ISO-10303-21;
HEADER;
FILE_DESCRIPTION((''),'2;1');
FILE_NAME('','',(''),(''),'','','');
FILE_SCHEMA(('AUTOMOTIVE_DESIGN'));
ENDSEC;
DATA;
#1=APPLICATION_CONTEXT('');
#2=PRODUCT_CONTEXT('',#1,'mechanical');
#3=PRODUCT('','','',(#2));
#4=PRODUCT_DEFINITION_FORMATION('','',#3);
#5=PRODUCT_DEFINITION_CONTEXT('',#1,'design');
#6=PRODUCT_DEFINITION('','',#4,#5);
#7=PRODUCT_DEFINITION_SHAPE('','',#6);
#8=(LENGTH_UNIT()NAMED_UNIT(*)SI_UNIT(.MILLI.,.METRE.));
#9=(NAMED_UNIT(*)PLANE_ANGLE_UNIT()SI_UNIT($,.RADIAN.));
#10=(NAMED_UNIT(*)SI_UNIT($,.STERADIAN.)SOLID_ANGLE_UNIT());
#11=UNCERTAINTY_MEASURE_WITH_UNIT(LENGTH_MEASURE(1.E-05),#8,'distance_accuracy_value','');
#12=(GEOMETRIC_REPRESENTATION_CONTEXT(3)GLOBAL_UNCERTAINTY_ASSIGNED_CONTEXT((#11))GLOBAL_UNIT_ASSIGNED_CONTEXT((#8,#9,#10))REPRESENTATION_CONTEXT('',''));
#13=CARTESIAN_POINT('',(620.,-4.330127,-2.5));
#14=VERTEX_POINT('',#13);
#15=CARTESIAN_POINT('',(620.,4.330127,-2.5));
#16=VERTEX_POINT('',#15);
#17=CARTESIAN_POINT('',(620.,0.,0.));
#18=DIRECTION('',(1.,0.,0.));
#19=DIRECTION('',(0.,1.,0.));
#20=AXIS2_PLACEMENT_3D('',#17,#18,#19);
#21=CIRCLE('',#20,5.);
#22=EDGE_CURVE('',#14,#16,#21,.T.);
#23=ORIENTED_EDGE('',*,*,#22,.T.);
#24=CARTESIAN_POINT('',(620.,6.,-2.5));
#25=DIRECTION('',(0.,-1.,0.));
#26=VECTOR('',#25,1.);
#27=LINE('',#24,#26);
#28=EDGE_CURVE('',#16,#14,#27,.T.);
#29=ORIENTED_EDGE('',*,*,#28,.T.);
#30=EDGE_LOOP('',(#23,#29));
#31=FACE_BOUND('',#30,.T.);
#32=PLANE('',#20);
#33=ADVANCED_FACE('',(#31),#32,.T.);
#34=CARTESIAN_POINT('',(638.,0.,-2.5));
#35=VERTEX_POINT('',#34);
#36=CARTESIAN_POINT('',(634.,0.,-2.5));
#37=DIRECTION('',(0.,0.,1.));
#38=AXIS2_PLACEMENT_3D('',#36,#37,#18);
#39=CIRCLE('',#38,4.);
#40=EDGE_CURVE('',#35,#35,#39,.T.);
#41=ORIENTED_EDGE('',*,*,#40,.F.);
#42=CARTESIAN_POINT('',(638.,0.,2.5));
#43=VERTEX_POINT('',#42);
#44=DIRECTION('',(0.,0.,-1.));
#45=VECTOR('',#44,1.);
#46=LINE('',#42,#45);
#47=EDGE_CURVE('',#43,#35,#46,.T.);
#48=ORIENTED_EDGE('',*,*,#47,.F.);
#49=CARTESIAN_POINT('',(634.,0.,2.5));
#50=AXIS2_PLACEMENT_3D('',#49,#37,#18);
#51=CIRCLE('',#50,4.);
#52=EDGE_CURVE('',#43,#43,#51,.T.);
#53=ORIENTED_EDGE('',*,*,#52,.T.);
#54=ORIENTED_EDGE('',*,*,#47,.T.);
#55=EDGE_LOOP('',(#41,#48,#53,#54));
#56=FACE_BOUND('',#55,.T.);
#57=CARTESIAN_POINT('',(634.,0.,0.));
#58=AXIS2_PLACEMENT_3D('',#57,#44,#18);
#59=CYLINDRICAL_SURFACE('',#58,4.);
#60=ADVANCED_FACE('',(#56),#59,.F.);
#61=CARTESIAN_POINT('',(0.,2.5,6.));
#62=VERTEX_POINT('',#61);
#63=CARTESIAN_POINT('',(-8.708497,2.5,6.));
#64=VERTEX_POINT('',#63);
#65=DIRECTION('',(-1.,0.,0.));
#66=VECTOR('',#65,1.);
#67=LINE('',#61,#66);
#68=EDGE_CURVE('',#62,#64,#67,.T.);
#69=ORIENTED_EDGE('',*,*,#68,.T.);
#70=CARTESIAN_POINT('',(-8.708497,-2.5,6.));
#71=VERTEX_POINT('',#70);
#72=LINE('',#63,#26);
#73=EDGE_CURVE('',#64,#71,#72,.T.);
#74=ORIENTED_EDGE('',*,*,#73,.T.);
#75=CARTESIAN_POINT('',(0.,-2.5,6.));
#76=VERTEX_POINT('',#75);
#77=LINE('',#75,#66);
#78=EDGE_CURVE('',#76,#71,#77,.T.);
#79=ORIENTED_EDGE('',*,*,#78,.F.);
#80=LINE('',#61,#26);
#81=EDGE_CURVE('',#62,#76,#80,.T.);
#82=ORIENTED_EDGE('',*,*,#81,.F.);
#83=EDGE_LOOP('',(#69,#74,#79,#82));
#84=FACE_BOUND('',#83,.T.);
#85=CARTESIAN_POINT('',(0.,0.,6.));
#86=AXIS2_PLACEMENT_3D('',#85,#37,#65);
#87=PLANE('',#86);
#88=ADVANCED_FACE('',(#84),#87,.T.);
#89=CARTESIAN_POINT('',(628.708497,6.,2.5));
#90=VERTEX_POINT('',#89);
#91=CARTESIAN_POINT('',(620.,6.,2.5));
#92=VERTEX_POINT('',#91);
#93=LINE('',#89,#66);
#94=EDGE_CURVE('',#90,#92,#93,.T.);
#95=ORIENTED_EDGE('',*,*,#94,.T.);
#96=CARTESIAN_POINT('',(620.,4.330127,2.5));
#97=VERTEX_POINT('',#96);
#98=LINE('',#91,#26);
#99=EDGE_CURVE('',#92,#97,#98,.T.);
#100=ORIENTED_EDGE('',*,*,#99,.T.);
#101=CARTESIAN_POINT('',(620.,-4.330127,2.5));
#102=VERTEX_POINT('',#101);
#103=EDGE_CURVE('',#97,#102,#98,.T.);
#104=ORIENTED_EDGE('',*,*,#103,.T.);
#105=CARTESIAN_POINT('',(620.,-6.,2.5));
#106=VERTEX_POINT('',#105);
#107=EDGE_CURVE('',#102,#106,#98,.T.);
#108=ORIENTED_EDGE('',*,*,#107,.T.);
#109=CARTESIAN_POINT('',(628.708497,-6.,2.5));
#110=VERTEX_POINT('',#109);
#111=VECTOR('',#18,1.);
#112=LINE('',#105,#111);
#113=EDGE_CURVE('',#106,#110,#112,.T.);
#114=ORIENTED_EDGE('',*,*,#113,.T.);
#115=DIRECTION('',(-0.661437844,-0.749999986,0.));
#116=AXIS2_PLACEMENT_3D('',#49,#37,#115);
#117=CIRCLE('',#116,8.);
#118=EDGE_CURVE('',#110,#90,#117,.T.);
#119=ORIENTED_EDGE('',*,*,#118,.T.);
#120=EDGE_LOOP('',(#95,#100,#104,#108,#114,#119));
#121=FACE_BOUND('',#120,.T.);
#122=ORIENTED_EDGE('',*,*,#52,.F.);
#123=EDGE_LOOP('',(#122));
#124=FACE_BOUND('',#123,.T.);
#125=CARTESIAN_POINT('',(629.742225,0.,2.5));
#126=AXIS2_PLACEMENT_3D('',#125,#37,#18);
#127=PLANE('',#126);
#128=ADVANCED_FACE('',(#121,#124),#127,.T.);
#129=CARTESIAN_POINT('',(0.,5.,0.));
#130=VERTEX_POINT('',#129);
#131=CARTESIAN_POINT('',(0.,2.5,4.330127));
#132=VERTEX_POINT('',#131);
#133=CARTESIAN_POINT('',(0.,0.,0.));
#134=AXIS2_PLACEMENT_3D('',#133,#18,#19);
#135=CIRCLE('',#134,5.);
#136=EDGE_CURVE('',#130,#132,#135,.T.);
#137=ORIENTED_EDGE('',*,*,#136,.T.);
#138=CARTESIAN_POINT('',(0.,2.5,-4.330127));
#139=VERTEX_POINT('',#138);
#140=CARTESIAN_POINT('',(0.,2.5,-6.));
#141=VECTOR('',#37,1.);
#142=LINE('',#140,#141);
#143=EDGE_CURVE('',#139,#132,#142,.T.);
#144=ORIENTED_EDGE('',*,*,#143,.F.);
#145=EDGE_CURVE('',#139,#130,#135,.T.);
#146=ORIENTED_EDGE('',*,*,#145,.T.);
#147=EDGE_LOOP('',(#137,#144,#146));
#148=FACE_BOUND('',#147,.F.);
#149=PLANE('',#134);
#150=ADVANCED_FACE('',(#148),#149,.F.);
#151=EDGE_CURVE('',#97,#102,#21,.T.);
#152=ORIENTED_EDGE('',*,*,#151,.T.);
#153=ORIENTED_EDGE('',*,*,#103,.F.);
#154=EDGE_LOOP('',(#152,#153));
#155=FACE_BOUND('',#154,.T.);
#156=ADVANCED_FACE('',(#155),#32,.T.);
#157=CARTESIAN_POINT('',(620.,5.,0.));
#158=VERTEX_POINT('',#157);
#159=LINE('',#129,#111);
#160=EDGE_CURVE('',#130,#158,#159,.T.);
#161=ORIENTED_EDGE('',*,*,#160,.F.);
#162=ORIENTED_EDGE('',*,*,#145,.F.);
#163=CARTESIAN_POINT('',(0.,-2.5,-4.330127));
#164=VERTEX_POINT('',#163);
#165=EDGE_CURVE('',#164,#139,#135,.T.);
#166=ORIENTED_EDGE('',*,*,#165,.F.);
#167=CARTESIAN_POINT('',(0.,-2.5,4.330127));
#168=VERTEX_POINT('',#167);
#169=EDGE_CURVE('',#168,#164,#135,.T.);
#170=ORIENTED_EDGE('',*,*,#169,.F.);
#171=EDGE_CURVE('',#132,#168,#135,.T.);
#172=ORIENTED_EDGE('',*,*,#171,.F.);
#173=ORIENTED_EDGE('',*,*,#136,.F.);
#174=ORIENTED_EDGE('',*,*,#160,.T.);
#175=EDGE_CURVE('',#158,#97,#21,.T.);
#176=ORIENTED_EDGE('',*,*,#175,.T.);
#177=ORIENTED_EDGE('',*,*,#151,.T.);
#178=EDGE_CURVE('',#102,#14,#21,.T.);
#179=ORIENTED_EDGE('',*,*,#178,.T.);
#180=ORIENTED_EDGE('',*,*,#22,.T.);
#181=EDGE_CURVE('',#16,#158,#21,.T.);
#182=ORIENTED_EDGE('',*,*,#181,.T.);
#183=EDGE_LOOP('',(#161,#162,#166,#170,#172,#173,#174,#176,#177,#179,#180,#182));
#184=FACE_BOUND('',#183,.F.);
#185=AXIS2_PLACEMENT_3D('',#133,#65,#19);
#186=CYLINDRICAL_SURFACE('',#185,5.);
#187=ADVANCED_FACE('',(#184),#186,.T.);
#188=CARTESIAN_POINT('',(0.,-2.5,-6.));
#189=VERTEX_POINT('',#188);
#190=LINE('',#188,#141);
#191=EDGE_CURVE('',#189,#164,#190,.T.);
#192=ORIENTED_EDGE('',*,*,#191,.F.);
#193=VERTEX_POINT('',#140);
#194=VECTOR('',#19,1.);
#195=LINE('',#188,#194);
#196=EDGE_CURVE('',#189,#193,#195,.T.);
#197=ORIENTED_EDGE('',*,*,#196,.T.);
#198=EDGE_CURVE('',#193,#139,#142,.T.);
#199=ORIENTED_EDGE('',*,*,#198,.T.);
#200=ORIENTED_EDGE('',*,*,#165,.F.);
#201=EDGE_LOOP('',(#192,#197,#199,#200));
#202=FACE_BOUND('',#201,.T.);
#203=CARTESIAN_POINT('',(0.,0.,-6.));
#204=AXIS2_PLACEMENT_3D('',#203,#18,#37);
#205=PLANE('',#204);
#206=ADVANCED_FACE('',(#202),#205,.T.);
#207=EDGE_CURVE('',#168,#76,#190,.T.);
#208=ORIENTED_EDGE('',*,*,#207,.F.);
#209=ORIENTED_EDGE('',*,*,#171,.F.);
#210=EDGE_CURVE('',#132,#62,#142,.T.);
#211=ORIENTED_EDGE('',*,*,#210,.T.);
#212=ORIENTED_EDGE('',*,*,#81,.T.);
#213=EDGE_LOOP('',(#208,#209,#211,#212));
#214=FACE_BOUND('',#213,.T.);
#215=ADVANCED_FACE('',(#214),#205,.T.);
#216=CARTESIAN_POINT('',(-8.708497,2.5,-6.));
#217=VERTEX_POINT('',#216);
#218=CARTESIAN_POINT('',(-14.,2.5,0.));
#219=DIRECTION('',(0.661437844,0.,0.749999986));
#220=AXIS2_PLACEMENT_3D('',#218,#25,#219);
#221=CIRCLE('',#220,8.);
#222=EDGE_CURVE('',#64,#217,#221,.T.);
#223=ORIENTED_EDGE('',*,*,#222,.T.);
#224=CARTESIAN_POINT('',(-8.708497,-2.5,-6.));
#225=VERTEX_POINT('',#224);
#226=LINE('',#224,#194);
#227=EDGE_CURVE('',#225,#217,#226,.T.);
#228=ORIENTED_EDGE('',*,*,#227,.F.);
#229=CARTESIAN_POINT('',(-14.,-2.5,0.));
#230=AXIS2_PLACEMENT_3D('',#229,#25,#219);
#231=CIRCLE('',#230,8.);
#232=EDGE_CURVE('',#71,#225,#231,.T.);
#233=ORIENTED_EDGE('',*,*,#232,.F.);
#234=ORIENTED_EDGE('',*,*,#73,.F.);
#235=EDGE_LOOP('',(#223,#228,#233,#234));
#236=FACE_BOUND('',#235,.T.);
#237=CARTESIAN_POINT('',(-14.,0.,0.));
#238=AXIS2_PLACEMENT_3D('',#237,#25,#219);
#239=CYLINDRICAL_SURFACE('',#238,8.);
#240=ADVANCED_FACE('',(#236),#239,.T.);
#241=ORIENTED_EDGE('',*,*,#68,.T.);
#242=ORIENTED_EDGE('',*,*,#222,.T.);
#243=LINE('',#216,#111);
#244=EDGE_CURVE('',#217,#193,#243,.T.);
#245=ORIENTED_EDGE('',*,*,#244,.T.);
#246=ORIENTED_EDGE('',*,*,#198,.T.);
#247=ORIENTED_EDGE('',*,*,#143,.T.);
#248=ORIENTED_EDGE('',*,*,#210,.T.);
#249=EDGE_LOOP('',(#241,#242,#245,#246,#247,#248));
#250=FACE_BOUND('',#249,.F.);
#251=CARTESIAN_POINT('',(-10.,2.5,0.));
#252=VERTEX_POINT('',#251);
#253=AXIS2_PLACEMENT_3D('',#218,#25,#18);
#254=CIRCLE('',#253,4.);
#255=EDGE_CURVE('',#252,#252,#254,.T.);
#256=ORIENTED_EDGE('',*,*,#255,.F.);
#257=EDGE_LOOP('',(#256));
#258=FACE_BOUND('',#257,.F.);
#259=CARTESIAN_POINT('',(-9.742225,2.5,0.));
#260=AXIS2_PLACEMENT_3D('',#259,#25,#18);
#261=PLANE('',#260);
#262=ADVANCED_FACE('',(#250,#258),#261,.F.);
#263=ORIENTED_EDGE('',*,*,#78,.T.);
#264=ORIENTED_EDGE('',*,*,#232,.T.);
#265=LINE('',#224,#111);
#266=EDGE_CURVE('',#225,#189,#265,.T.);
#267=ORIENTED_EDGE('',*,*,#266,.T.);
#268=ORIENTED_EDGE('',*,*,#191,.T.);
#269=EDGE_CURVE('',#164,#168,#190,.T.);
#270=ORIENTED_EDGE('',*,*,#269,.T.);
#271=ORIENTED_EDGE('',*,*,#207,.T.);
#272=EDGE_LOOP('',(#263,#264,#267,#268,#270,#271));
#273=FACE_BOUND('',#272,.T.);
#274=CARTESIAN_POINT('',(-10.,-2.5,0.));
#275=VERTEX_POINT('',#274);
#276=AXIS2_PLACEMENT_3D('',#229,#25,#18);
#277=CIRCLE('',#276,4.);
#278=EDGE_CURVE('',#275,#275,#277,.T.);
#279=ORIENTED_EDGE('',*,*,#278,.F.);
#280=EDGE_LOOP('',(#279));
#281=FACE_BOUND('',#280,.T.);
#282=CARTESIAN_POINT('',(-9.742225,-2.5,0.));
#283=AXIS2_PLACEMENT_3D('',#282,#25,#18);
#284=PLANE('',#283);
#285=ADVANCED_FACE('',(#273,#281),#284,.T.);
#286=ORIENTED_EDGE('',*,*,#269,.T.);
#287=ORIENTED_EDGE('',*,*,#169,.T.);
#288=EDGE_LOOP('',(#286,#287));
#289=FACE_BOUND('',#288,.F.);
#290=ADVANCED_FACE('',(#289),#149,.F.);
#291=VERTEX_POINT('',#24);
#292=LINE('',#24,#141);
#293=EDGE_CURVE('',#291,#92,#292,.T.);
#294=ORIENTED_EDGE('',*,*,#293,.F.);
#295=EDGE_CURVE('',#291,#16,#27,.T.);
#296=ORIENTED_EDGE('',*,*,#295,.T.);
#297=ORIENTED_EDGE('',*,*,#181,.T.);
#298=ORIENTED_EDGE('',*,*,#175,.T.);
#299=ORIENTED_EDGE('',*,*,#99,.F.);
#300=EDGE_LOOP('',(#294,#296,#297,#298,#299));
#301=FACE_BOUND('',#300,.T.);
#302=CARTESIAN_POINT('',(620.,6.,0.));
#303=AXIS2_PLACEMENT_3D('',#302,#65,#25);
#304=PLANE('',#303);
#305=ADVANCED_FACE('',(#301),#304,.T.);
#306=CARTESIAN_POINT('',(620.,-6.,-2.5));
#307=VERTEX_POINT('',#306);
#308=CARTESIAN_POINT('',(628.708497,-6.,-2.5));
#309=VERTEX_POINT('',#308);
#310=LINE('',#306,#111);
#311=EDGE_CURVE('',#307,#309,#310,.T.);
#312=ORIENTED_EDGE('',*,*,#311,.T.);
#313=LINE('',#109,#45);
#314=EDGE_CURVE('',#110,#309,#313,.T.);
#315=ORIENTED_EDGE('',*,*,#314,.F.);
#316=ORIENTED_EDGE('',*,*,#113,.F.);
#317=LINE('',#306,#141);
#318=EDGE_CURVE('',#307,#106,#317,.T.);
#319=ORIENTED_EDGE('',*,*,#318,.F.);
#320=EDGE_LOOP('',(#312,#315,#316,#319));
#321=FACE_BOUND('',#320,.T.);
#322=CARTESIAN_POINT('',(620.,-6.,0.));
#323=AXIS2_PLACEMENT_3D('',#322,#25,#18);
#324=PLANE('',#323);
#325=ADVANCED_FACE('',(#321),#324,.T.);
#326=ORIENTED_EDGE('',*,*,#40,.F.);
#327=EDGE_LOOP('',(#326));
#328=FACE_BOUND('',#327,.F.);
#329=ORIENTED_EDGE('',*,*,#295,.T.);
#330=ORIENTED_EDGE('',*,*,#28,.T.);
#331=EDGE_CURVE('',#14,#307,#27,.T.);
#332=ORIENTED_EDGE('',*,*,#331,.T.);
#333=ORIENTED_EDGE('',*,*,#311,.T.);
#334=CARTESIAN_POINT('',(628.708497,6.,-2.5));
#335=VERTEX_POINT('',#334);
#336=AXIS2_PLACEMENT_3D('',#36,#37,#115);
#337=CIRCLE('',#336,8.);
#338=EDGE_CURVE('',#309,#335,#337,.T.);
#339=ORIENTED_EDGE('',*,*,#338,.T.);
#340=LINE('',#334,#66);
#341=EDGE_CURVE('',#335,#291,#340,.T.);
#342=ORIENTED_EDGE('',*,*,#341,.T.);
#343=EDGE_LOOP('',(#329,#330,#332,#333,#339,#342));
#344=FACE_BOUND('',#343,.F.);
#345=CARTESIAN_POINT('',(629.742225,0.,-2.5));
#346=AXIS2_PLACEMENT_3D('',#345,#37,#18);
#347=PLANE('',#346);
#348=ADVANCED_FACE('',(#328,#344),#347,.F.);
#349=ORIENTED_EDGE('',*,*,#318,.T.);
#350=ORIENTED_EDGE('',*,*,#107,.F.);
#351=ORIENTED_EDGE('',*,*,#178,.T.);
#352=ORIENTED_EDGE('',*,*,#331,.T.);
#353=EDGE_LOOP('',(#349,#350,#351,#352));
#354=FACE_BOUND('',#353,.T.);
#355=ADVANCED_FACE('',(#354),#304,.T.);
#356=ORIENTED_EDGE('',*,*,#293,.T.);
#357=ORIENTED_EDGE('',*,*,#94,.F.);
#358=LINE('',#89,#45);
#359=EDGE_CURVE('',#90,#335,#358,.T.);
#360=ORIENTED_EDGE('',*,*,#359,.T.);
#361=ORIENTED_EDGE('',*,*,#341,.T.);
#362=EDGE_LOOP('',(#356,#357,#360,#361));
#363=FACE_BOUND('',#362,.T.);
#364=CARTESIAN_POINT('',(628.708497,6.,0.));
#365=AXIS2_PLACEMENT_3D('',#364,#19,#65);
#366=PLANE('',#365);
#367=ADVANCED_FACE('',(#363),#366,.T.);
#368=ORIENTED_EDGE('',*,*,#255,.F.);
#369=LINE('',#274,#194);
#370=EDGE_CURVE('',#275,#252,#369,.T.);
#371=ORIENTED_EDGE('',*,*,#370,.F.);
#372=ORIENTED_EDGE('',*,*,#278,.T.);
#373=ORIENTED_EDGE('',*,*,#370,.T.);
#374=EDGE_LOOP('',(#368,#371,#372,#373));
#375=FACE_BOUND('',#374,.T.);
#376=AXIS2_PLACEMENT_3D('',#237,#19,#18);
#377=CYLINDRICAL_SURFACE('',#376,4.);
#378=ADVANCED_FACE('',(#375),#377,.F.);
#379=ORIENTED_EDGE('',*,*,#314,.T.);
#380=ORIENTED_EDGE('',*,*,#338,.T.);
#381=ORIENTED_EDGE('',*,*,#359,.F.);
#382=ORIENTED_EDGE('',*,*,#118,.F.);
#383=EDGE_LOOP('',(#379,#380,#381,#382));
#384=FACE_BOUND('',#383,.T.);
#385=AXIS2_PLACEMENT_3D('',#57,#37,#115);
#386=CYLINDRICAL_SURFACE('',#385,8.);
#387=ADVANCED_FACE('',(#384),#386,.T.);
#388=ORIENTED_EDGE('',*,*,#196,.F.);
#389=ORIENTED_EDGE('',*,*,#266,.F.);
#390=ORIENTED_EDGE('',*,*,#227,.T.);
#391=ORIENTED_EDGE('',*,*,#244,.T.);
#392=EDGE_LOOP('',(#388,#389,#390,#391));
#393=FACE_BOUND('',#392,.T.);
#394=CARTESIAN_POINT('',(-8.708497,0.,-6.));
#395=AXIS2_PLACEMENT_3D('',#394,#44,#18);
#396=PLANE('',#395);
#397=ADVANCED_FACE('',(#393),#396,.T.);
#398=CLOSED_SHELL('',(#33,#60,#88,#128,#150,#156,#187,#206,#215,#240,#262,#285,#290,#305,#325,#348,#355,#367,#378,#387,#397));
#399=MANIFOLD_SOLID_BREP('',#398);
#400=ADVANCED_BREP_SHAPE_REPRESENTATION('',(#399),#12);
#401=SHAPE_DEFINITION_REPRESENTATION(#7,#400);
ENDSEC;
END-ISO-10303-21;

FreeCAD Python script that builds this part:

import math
import FreeCAD as App
import Part
import Sketcher
from FreeCAD import Vector

doc = App.newDocument("Part")
body = doc.addObject("PartDesign::Body", "Body")

# Sketch on YZ plane
sketch1 = body.newObject("Sketcher::SketchObject", "Sketch")
sketch1.AttachmentSupport = (doc.getObject("YZ_Plane"), [""])
sketch1.MapMode = "FlatFace"
sketch1.addGeometry(Part.Circle(Vector(0, 0, 0), Vector(0, 0, 1), 5), False)
sketch1.addConstraint([
    Sketcher.Constraint("Coincident", 0, 3, -1, 1),
    Sketcher.Constraint("Diameter", 0, 10.0),
])
pad1 = body.newObject("PartDesign::Pad", "Pad")
pad1.Profile = sketch1
pad1.Length = 620

# Sketch on XZ plane
sketch2 = body.newObject("Sketcher::SketchObject", "Sketch001")
sketch2.AttachmentSupport = (doc.getObject("XZ_Plane"), [""])
sketch2.MapMode = "FlatFace"
sketch2.addGeometry([
    Part.LineSegment(Vector(0, -6, 0), Vector(0, 6, 0)),  # 0
    Part.LineSegment(Vector(0, 6, 0), Vector(-8.7, 6, 0)),  # 1
    Part.ArcOfCircle(Part.Circle(Vector(-14, 0, 0), Vector(0, 0, 1), 8), math.radians(49), math.radians(311)),  # 2
    Part.LineSegment(Vector(-8.7, -6, 0), Vector(0, -6, 0)),  # 3
    Part.Circle(Vector(-14, 0, 0), Vector(0, 0, 1), 4),  # 4
], False)
sketch2.addConstraint([
    Sketcher.Constraint("Coincident", 0, 2, 1, 1),
    Sketcher.Constraint("Coincident", 1, 2, 2, 1),
    Sketcher.Constraint("Coincident", 2, 2, 3, 1),
    Sketcher.Constraint("Coincident", 3, 2, 0, 1),
    Sketcher.Constraint("Vertical", 0),
    Sketcher.Constraint("Horizontal", 1),
    Sketcher.Constraint("Horizontal", 3),
    Sketcher.Constraint("Coincident", 4, 3, 2, 3),
    Sketcher.Constraint("Symmetric", 0, 2, 3, 2, -1, 1),
    Sketcher.Constraint("PointOnObject", 2, 3, -1),
    Sketcher.Constraint("Diameter", 4, 8.0),
    Sketcher.Constraint("Radius", 2, 8.0),
    Sketcher.Constraint("DistanceY", 0, 1, 0, 2, 12.0),
    Sketcher.Constraint("DistanceX", 2, 3, -1, 1, 14.0),
])
pad2 = body.newObject("PartDesign::Pad", "Pad001")
pad2.Profile = sketch2
pad2.Length = 5
pad2.Midplane = True

# Sketch on XY plane
sketch3 = body.newObject("Sketcher::SketchObject", "Sketch002")
sketch3.AttachmentSupport = (doc.getObject("XY_Plane"), [""])
sketch3.MapMode = "FlatFace"
sketch3.addGeometry([
    Part.LineSegment(Vector(628.7, 6, 0), Vector(620, 6, 0)),  # 0
    Part.LineSegment(Vector(620, 6, 0), Vector(620, -6, 0)),  # 1
    Part.LineSegment(Vector(620, -6, 0), Vector(628.7, -6, 0)),  # 2
    Part.ArcOfCircle(Part.Circle(Vector(634, 0, 0), Vector(0, 0, 1), 8), math.radians(-131), math.radians(131)),  # 3
    Part.Circle(Vector(634, 0, 0), Vector(0, 0, 1), 4),  # 4
], False)
sketch3.addConstraint([
    Sketcher.Constraint("Coincident", 0, 2, 1, 1),
    Sketcher.Constraint("Coincident", 1, 2, 2, 1),
    Sketcher.Constraint("Coincident", 2, 2, 3, 1),
    Sketcher.Constraint("Coincident", 3, 2, 0, 1),
    Sketcher.Constraint("Horizontal", 0),
    Sketcher.Constraint("Vertical", 1),
    Sketcher.Constraint("Horizontal", 2),
    Sketcher.Constraint("Coincident", 4, 3, 3, 3),
    Sketcher.Constraint("Symmetric", 2, 2, 3, 2, -1),
    Sketcher.Constraint("Diameter", 4, 8.0),
    Sketcher.Constraint("Radius", 3, 8.0),
    Sketcher.Constraint("DistanceY", 1, 2, 1, 1, 12.0),
    Sketcher.Constraint("DistanceX", -1, 1, 3, 3, 634.0),
    Sketcher.Constraint("DistanceX", -1, 1, 0, 2, 620.0),
])
pad3 = body.newObject("PartDesign::Pad", "Pad002")
pad3.Profile = sketch3
pad3.Length = 5
pad3.Midplane = True

doc.recompute()
